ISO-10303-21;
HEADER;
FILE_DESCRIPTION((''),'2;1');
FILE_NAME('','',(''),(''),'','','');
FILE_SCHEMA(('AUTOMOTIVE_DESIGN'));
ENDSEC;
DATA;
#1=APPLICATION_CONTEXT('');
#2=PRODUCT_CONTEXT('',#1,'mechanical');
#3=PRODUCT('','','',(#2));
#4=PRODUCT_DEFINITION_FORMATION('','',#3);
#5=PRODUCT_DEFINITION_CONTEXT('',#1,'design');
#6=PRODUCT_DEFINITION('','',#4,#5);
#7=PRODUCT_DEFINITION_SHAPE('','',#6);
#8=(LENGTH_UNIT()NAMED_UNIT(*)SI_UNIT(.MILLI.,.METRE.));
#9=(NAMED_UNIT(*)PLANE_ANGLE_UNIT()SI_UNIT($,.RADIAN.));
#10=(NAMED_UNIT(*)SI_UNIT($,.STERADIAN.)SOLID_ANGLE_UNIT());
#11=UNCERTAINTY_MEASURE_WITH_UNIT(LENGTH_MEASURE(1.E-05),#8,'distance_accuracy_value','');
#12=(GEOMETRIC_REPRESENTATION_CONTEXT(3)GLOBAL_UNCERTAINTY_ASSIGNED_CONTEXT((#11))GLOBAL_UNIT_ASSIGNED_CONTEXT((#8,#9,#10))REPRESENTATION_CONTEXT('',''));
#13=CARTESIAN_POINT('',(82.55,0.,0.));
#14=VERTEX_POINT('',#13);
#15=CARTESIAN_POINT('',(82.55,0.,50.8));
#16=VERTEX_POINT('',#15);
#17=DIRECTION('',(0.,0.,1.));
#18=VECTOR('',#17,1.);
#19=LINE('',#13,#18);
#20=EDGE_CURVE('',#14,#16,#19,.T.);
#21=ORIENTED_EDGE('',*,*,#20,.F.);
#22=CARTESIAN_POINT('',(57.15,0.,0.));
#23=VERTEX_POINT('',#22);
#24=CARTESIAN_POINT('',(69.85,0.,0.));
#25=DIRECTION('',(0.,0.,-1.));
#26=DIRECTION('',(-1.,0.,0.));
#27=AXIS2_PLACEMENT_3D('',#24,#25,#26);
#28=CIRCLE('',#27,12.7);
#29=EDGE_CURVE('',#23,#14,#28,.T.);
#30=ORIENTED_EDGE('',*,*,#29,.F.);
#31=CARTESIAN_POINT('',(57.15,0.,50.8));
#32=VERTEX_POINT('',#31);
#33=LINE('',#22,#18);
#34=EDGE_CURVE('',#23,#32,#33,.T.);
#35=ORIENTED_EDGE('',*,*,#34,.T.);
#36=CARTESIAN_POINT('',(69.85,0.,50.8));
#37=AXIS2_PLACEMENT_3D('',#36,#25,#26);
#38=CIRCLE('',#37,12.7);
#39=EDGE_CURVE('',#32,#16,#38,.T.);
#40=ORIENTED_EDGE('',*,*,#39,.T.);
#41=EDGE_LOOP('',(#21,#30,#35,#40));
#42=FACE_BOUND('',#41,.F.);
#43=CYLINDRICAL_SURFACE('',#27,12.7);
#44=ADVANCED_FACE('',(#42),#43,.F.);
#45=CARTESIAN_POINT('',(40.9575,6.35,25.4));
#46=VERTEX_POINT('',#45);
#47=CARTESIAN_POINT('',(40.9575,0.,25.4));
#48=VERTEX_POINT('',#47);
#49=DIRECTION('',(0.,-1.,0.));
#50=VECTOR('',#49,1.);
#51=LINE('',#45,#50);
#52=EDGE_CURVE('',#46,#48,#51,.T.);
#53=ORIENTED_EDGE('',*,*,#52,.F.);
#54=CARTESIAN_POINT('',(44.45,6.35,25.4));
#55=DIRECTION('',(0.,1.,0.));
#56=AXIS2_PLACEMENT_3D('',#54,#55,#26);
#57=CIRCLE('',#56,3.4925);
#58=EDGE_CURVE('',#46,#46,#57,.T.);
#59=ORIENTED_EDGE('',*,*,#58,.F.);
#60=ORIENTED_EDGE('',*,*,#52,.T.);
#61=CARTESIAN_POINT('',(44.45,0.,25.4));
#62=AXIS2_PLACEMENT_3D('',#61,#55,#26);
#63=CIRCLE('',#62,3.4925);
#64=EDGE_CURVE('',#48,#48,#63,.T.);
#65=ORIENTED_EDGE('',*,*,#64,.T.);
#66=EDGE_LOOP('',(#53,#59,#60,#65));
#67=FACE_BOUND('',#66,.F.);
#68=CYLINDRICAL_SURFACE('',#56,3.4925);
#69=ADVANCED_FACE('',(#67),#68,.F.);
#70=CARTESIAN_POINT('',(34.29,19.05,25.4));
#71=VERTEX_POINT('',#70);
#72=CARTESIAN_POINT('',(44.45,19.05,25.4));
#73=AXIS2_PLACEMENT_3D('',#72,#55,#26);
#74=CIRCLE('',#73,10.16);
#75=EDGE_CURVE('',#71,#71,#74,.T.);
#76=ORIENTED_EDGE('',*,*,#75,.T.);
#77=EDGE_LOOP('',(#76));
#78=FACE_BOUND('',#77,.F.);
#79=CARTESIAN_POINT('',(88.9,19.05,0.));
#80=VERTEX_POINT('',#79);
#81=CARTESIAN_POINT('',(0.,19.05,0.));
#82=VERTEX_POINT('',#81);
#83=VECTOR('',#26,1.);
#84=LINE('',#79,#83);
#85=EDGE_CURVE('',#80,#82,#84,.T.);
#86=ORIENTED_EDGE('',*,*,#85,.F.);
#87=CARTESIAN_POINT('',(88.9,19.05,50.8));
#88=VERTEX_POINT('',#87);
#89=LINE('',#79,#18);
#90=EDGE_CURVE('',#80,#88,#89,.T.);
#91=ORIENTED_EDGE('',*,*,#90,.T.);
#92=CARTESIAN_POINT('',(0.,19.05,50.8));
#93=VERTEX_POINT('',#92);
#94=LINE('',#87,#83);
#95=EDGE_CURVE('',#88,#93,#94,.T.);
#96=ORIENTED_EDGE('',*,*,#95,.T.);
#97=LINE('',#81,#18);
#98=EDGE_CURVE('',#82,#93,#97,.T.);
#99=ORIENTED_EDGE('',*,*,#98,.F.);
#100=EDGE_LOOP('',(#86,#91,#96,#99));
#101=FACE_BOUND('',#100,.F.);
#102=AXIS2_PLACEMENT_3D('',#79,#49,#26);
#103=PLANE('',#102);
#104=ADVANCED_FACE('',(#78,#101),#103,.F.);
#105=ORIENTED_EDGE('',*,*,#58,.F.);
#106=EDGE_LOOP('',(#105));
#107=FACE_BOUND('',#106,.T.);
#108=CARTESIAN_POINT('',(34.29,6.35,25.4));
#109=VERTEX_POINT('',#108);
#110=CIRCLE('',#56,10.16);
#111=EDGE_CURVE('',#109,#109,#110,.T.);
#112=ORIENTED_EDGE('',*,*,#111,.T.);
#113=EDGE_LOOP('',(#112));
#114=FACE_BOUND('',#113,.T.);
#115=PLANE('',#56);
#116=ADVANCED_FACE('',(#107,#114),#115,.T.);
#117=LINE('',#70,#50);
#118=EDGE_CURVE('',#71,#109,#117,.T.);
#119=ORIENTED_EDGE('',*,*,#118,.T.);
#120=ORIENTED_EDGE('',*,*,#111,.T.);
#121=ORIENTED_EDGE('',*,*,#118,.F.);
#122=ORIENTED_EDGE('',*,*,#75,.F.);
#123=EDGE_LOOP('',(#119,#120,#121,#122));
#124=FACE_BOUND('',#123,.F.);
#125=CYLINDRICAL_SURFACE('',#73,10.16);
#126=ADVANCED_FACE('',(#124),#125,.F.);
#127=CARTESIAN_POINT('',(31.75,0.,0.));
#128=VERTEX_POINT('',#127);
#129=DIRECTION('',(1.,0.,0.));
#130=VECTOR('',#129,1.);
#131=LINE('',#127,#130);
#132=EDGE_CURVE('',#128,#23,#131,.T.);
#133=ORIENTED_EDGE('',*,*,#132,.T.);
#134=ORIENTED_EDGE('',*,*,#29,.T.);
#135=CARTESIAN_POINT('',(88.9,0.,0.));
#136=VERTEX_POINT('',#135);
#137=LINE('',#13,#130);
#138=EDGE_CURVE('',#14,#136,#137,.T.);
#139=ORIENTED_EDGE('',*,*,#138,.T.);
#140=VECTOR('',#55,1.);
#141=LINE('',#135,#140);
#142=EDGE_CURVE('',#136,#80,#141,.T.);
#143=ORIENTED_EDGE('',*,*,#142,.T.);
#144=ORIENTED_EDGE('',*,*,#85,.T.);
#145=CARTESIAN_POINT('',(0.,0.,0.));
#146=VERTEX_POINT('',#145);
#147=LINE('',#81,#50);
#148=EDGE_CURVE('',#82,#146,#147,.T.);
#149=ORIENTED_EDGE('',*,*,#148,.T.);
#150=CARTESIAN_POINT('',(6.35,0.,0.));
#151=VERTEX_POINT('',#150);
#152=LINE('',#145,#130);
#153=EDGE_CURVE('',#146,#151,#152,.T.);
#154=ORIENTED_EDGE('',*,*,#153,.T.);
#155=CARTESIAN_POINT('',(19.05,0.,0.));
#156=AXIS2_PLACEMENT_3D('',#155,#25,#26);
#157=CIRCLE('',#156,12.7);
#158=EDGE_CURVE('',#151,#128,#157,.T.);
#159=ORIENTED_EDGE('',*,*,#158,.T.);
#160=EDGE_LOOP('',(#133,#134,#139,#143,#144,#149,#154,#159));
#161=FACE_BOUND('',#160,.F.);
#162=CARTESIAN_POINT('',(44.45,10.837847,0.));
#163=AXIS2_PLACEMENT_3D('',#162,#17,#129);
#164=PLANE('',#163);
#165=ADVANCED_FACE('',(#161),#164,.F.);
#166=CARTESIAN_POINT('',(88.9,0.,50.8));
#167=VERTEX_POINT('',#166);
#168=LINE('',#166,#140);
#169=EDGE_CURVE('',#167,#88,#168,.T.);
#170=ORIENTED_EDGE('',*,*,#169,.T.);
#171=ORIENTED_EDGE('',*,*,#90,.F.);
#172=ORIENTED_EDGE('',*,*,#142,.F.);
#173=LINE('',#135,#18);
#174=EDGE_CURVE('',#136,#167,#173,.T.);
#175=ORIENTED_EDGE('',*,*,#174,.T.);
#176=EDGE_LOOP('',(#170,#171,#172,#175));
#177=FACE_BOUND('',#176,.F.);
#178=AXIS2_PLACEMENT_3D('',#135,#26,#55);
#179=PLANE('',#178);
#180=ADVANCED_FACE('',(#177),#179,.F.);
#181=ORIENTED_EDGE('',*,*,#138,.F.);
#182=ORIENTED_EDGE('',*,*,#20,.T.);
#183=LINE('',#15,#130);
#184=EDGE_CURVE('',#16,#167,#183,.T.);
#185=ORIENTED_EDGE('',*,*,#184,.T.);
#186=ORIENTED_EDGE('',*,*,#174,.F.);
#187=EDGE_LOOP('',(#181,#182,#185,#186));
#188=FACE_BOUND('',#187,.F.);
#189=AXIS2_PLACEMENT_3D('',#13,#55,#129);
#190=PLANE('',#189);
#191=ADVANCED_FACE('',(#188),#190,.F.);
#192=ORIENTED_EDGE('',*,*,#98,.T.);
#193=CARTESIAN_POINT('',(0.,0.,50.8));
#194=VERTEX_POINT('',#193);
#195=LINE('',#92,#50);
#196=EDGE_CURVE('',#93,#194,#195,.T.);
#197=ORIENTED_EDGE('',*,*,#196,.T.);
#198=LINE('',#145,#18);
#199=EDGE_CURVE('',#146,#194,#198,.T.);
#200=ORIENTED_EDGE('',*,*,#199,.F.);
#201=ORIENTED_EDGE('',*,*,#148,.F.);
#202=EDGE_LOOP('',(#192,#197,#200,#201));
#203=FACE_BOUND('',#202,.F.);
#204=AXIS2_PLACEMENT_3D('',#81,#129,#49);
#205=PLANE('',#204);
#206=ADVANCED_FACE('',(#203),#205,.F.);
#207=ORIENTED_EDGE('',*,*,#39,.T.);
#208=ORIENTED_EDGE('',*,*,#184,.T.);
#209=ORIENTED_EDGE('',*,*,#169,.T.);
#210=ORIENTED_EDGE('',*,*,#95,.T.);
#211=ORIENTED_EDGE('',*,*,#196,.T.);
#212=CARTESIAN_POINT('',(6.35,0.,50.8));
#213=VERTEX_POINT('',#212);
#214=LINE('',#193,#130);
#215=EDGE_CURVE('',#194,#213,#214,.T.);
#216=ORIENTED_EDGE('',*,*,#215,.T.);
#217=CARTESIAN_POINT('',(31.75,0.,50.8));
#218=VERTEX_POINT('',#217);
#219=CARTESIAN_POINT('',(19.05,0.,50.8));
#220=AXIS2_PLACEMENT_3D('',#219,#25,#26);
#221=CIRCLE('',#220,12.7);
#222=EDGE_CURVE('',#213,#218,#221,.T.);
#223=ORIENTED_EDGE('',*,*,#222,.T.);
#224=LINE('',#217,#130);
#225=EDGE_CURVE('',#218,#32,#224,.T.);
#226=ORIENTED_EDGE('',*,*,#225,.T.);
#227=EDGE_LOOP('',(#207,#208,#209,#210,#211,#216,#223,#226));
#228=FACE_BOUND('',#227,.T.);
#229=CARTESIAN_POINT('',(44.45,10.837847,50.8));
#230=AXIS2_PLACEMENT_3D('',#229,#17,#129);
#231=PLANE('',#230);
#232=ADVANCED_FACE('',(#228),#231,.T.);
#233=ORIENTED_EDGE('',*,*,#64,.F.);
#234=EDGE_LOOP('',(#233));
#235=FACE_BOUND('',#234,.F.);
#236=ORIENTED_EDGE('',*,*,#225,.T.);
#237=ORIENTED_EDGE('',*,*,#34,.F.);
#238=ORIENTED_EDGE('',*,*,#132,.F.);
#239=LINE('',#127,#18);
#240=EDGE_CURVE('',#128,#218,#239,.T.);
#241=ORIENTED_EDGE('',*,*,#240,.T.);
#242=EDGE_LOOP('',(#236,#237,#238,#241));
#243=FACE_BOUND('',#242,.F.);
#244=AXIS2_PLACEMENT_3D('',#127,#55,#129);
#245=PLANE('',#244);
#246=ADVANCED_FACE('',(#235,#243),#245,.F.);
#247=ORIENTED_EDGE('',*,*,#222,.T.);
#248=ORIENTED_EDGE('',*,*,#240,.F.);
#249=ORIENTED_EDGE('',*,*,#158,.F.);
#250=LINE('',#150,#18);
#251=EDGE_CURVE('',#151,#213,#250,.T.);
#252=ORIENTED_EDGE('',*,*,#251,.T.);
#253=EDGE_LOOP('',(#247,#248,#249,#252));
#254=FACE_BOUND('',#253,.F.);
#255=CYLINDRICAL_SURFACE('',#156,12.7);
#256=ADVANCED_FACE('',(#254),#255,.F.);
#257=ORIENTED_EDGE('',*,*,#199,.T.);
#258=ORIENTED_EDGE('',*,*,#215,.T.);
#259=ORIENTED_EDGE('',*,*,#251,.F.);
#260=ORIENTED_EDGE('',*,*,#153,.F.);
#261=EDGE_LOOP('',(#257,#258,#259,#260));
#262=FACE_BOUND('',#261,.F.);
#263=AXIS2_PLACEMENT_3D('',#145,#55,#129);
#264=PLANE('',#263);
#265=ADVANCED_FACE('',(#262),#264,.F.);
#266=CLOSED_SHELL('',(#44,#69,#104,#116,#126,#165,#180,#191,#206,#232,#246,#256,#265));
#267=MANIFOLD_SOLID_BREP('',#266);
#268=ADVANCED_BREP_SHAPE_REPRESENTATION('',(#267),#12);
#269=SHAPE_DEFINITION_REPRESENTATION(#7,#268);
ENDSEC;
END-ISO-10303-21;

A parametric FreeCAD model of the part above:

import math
import FreeCAD as App
import Part
import Sketcher

V = App.Vector
Q = App.Units.Quantity

doc = App.newDocument("Part")
body = doc.addObject("PartDesign::Body", "Body")

# Sketch on XY plane
sketch1 = body.newObject("Sketcher::SketchObject", "Sketch")
sketch1.AttachmentSupport = (doc.getObject("XY_Plane"), [""])
sketch1.MapMode = "FlatFace"
sketch1.addGeometry(Part.LineSegment(V(0, 19, 0), V(0, 0, 0)), False)
sketch1.addGeometry(Part.LineSegment(V(0, 0, 0), V(6, 0, 0)), False)
sketch1.addGeometry(Part.ArcOfCircle(Part.Circle(V(19, 0, 0), V(0, 0, 1), 13), math.radians(0), math.radians(180)), False)
sketch1.addGeometry(Part.LineSegment(V(32, 0, 0), V(57, 0, 0)), False)
sketch1.addGeometry(Part.ArcOfCircle(Part.Circle(V(70, 0, 0), V(0, 0, 1), 13), math.radians(0), math.radians(180)), False)
sketch1.addGeometry(Part.LineSegment(V(83, 0, 0), V(89, 0, 0)), False)
sketch1.addGeometry(Part.LineSegment(V(89, 0, 0), V(89, 19, 0)), False)
sketch1.addGeometry(Part.LineSegment(V(89, 19, 0), V(0, 19, 0)), False)
sketch1.addConstraint(Sketcher.Constraint("Coincident", 0, 2, 1, 1))
sketch1.addConstraint(Sketcher.Constraint("Coincident", 1, 2, 2, 2))
sketch1.addConstraint(Sketcher.Constraint("Coincident", 2, 1, 3, 1))
sketch1.addConstraint(Sketcher.Constraint("Coincident", 3, 2, 4, 2))
sketch1.addConstraint(Sketcher.Constraint("Coincident", 4, 1, 5, 1))
sketch1.addConstraint(Sketcher.Constraint("Coincident", 5, 2, 6, 1))
sketch1.addConstraint(Sketcher.Constraint("Coincident", 6, 2, 7, 1))
sketch1.addConstraint(Sketcher.Constraint("Coincident", 7, 2, 0, 1))
sketch1.addConstraint(Sketcher.Constraint("Vertical", 0))
sketch1.addConstraint(Sketcher.Constraint("Horizontal", 1))
sketch1.addConstraint(Sketcher.Constraint("Horizontal", 3))
sketch1.addConstraint(Sketcher.Constraint("Horizontal", 5))
sketch1.addConstraint(Sketcher.Constraint("Vertical", 6))
sketch1.addConstraint(Sketcher.Constraint("Horizontal", 7))
sketch1.addConstraint(Sketcher.Constraint("Coincident", 0, 2, -1, 1))
sketch1.addConstraint(Sketcher.Constraint("Equal", 2, 4))
sketch1.addConstraint(Sketcher.Constraint("PointOnObject", 2, 3, -1))
sketch1.addConstraint(Sketcher.Constraint("PointOnObject", 4, 3, -1))
sketch1.addConstraint(Sketcher.Constraint("PointOnObject", 2, 1, -1))
sketch1.addConstraint(Sketcher.Constraint("PointOnObject", 4, 1, -1))
sketch1.addConstraint(Sketcher.Constraint("Equal", 1, 5))
sketch1.addConstraint(Sketcher.Constraint("Radius", 2, Q("0.5 in")))
sketch1.addConstraint(Sketcher.Constraint("DistanceX", 3, 1, 3, 2, Q("1 in")))
sketch1.addConstraint(Sketcher.Constraint("DistanceX", 7, 2, 7, 1, Q("3.5 in")))
sketch1.addConstraint(Sketcher.Constraint("DistanceY", 0, 2, 0, 1, Q("0.75 in")))
pad1 = body.newObject("PartDesign::Pad", "Pad")
pad1.Profile = sketch1
pad1.Length = Q("2 in")

# Sketch on XZ plane
sketch2 = body.newObject("Sketcher::SketchObject", "Sketch001")
sketch2.AttachmentSupport = (doc.getObject("XZ_Plane"), [""])
sketch2.MapMode = "FlatFace"
sketch2.AttachmentOffset = App.Placement(V(0, 0, -0.75 * 25.4), App.Rotation())
sketch2.addGeometry(Part.Circle(V(44, 25, 0), V(0, 0, 1), 10), False)
sketch2.addConstraint(Sketcher.Constraint("Diameter", 0, Q("0.8 in")))
sketch2.addConstraint(Sketcher.Constraint("DistanceY", -1, 1, 0, 3, Q("1 in")))
sketch2.addConstraint(Sketcher.Constraint("DistanceX", -1, 1, 0, 3, Q("1.75 in")))
pocket1 = body.newObject("PartDesign::Pocket", "Pocket")
pocket1.Profile = sketch2
pocket1.Length = Q("0.5 in")
pocket1.Reversed = True

# Sketch on XZ plane
sketch3 = body.newObject("Sketcher::SketchObject", "Sketch002")
sketch3.AttachmentSupport = (doc.getObject("XZ_Plane"), [""])
sketch3.MapMode = "FlatFace"
sketch3.AttachmentOffset = App.Placement(V(0, 0, -0.25 * 25.4), App.Rotation())
sketch3.addGeometry(Part.Circle(V(44.5, 25.4, 0), V(0, 0, 1), 3.5), False)
sketch3.addConstraint(Sketcher.Constraint("Diameter", 0, Q("0.275 in")))
sketch3.addConstraint(Sketcher.Constraint("DistanceY", -1, 1, 0, 3, Q("1 in")))
sketch3.addConstraint(Sketcher.Constraint("DistanceX", -1, 1, 0, 3, Q("1.75 in")))
pocket2 = body.newObject("PartDesign::Pocket", "Pocket001")
pocket2.Profile = sketch3
pocket2.Type = "ThroughAll"
pocket2.Reversed = True

doc.recompute()
